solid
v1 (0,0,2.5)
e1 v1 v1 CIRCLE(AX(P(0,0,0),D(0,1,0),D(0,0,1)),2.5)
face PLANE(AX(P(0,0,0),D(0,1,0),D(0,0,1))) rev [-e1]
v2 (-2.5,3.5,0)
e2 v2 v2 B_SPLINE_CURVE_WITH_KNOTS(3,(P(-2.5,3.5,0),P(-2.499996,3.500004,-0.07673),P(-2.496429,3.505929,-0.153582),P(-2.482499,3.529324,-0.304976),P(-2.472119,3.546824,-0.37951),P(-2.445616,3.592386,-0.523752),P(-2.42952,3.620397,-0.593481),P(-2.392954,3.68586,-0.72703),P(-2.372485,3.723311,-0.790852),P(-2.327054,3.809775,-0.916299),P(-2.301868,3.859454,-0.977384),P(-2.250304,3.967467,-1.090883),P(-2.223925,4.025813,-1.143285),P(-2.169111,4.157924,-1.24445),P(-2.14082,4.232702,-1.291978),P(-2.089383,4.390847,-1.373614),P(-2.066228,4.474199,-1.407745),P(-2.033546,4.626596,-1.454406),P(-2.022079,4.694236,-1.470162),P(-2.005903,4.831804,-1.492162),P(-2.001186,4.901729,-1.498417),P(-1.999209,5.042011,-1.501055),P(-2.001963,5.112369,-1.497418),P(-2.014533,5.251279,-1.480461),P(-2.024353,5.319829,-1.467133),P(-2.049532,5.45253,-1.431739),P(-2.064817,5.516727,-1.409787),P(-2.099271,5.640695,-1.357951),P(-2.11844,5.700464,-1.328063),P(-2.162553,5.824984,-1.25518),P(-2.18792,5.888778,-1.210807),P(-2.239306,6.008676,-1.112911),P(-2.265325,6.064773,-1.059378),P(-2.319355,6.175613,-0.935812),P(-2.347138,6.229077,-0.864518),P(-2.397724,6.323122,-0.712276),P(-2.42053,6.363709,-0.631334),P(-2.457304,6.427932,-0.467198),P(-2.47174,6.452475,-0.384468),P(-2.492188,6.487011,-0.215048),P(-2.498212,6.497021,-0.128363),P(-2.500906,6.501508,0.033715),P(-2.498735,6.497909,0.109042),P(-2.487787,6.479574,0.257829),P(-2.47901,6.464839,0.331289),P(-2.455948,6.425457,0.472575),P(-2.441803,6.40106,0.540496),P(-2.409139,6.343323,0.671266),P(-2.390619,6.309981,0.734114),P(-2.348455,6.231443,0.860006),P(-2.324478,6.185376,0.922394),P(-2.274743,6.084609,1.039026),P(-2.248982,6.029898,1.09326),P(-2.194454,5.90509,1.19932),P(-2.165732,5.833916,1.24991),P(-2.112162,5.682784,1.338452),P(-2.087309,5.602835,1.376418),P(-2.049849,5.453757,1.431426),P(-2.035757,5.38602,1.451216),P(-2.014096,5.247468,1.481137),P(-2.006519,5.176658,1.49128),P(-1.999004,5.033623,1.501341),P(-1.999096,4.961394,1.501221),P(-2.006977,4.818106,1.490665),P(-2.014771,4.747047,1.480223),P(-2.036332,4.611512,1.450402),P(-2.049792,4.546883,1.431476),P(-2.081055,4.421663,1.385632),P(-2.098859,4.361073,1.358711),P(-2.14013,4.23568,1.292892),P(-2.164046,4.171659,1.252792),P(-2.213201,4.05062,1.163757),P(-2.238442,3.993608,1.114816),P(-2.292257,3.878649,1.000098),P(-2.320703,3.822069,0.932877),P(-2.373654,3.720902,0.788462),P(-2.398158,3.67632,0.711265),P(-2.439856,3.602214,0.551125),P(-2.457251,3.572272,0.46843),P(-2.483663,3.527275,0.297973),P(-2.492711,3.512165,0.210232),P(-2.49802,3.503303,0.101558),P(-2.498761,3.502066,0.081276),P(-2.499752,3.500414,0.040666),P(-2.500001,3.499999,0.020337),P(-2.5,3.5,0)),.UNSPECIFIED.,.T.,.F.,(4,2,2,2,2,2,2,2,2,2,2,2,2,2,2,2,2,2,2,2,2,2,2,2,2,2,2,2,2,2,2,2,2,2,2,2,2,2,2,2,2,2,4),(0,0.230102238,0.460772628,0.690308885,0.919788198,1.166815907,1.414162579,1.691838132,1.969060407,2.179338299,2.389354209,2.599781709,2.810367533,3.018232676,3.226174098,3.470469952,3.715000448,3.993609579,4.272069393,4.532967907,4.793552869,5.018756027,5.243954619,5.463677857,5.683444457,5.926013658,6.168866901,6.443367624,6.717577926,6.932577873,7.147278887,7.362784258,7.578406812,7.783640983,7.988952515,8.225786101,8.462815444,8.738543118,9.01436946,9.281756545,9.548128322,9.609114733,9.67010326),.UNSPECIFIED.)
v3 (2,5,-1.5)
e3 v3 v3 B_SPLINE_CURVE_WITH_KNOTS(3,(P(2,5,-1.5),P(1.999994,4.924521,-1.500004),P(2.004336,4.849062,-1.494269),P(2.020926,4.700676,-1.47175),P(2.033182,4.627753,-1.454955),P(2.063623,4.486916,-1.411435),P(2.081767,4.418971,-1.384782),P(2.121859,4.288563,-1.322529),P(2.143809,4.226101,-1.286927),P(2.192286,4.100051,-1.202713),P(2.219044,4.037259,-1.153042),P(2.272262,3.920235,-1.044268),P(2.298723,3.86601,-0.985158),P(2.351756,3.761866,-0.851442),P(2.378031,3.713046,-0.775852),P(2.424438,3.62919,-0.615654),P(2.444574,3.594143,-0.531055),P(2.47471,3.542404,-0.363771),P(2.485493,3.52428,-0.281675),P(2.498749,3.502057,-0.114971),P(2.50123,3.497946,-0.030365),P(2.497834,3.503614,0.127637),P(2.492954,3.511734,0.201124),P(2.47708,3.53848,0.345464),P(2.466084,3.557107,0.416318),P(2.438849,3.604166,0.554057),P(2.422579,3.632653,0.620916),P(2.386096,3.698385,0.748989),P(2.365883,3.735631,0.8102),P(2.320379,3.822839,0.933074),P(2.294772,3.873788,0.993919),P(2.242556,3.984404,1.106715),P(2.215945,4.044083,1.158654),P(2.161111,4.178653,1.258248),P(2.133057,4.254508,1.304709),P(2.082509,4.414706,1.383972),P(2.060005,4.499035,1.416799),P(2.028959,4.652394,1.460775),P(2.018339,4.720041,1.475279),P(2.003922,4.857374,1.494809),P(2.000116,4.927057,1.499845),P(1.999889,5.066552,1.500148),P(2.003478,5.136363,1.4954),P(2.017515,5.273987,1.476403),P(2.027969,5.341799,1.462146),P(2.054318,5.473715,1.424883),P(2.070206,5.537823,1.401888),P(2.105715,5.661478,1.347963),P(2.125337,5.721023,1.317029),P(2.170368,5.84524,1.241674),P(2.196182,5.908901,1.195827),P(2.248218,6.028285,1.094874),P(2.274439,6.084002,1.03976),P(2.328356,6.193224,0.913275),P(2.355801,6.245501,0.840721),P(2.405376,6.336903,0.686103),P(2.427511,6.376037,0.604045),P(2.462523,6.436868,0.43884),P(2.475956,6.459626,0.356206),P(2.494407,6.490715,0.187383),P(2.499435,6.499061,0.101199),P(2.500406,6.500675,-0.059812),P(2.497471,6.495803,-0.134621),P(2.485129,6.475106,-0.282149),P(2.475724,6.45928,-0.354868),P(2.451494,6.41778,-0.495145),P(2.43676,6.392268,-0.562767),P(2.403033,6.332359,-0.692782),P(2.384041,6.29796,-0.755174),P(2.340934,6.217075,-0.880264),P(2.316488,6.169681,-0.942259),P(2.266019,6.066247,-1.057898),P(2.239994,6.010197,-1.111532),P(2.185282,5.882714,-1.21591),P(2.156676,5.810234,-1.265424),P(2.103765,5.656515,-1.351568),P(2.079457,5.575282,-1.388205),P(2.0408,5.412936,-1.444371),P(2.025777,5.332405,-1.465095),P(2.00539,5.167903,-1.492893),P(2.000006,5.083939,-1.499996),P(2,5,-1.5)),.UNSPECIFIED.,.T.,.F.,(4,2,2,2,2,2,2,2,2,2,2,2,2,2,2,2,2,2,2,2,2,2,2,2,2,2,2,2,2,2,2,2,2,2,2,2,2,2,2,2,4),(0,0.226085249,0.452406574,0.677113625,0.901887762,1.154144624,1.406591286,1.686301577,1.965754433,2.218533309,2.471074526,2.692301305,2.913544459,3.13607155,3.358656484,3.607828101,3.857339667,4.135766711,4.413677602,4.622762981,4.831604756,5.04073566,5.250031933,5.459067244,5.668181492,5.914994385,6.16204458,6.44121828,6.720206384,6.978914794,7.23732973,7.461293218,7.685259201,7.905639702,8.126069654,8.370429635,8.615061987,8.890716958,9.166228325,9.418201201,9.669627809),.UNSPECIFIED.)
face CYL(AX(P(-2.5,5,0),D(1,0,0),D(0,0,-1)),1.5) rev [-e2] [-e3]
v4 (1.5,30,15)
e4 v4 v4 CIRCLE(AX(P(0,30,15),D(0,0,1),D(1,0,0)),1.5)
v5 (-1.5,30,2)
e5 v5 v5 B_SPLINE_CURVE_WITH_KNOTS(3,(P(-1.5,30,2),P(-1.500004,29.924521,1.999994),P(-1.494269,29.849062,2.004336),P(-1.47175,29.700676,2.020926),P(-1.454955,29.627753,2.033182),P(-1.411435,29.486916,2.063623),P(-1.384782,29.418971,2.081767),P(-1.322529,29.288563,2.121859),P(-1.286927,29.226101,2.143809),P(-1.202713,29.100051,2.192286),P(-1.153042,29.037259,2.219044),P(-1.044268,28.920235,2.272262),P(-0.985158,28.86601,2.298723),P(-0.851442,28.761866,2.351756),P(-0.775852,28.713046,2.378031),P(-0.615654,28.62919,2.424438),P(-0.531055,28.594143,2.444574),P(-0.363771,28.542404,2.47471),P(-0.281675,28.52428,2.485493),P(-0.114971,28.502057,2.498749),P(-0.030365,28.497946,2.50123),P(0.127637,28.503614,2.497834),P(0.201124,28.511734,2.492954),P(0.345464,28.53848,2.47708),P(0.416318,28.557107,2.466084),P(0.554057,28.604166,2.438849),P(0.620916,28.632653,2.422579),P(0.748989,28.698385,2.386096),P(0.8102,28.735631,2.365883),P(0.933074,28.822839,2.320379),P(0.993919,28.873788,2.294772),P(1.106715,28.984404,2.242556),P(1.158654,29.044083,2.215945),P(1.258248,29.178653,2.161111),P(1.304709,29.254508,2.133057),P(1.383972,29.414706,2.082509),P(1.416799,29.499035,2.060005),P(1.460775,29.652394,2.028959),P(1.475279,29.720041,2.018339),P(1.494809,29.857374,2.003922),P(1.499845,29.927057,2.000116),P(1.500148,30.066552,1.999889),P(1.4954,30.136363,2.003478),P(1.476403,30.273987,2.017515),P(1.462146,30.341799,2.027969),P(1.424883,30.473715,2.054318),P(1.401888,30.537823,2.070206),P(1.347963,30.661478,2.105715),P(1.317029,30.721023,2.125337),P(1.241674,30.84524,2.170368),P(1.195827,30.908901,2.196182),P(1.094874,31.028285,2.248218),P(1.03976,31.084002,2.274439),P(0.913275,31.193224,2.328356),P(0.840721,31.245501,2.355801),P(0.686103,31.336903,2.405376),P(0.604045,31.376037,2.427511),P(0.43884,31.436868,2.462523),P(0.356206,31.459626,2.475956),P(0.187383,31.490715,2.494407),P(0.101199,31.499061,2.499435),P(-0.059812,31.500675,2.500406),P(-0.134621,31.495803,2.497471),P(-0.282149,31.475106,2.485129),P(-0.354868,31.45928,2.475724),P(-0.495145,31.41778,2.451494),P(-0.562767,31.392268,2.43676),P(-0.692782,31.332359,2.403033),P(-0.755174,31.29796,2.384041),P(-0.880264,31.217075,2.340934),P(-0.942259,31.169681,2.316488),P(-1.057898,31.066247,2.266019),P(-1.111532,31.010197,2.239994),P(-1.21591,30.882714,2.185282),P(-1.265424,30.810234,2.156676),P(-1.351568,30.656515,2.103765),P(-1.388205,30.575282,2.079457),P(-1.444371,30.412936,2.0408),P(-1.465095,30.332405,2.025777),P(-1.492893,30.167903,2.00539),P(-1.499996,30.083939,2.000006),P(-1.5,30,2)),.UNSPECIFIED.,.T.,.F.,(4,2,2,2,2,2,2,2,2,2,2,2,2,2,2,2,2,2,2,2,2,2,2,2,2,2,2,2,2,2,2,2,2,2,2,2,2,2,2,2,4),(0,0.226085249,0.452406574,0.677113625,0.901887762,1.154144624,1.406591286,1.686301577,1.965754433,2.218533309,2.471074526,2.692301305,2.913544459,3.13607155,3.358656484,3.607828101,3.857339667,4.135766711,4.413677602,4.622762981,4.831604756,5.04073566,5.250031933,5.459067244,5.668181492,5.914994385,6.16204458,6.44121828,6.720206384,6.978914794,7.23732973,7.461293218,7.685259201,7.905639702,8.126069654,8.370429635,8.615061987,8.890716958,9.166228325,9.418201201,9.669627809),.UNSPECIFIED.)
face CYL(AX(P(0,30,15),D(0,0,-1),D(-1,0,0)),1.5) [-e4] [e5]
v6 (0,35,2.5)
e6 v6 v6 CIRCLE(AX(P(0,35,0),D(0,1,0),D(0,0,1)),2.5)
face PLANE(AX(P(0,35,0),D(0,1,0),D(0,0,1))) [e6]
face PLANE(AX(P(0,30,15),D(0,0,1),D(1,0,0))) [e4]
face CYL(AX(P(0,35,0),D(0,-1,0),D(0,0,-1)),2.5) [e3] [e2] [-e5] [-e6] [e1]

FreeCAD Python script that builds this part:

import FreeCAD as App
import Part
import Sketcher

V = App.Vector
Q = App.Units.Quantity

doc = App.newDocument("Part")
body = doc.addObject("PartDesign::Body", "Body")

sketch1 = body.newObject("Sketcher::SketchObject", "Sketch")
sketch1.AttachmentSupport = (doc.getObject("XZ_Plane"), [""])
sketch1.MapMode = "FlatFace"
sketch1.addGeometry(Part.Circle(V(0, 0, 0), V(0, 0, 1), 2.5), False)
sketch1.addConstraint([
    Sketcher.Constraint("Coincident", 0, 3, -1, 1),
    Sketcher.Constraint("Diameter", 0, Q("5 mm")),
])
pad1 = body.newObject("PartDesign::Pad", "Pad")
pad1.Profile = sketch1
pad1.Length = 35
pad1.Reversed = True

sketch2 = body.newObject("Sketcher::SketchObject", "Sketch001")
sketch2.AttachmentSupport = (doc.getObject("YZ_Plane"), [""])
sketch2.MapMode = "FlatFace"
sketch2.addGeometry(Part.Circle(V(5, 0, 0), V(0, 0, 1), 1.5), False)
sketch2.addConstraint([
    Sketcher.Constraint("PointOnObject", 0, 3, -1),
    Sketcher.Constraint("Diameter", 0, Q("3 mm")),
    Sketcher.Constraint("DistanceX", -1, 1, 0, 3, Q("5 mm")),
])
pocket1 = body.newObject("PartDesign::Pocket", "Pocket")
pocket1.Profile = sketch2
pocket1.Type = "ThroughAll"
pocket1.Midplane = True

sketch3 = body.newObject("Sketcher::SketchObject", "Sketch002")
sketch3.AttachmentSupport = (doc.getObject("XY_Plane"), [""])
sketch3.MapMode = "FlatFace"
sketch3.addGeometry(Part.Circle(V(0, 30, 0), V(0, 0, 1), 1.5), False)
sketch3.addConstraint([
    Sketcher.Constraint("PointOnObject", 0, 3, -2),
    Sketcher.Constraint("Diameter", 0, Q("3 mm")),
    Sketcher.Constraint("DistanceY", -1, 1, 0, 3, Q("30 mm")),
])
pad2 = body.newObject("PartDesign::Pad", "Pad001")
pad2.Profile = sketch3
pad2.Length = 15

doc.recompute()
